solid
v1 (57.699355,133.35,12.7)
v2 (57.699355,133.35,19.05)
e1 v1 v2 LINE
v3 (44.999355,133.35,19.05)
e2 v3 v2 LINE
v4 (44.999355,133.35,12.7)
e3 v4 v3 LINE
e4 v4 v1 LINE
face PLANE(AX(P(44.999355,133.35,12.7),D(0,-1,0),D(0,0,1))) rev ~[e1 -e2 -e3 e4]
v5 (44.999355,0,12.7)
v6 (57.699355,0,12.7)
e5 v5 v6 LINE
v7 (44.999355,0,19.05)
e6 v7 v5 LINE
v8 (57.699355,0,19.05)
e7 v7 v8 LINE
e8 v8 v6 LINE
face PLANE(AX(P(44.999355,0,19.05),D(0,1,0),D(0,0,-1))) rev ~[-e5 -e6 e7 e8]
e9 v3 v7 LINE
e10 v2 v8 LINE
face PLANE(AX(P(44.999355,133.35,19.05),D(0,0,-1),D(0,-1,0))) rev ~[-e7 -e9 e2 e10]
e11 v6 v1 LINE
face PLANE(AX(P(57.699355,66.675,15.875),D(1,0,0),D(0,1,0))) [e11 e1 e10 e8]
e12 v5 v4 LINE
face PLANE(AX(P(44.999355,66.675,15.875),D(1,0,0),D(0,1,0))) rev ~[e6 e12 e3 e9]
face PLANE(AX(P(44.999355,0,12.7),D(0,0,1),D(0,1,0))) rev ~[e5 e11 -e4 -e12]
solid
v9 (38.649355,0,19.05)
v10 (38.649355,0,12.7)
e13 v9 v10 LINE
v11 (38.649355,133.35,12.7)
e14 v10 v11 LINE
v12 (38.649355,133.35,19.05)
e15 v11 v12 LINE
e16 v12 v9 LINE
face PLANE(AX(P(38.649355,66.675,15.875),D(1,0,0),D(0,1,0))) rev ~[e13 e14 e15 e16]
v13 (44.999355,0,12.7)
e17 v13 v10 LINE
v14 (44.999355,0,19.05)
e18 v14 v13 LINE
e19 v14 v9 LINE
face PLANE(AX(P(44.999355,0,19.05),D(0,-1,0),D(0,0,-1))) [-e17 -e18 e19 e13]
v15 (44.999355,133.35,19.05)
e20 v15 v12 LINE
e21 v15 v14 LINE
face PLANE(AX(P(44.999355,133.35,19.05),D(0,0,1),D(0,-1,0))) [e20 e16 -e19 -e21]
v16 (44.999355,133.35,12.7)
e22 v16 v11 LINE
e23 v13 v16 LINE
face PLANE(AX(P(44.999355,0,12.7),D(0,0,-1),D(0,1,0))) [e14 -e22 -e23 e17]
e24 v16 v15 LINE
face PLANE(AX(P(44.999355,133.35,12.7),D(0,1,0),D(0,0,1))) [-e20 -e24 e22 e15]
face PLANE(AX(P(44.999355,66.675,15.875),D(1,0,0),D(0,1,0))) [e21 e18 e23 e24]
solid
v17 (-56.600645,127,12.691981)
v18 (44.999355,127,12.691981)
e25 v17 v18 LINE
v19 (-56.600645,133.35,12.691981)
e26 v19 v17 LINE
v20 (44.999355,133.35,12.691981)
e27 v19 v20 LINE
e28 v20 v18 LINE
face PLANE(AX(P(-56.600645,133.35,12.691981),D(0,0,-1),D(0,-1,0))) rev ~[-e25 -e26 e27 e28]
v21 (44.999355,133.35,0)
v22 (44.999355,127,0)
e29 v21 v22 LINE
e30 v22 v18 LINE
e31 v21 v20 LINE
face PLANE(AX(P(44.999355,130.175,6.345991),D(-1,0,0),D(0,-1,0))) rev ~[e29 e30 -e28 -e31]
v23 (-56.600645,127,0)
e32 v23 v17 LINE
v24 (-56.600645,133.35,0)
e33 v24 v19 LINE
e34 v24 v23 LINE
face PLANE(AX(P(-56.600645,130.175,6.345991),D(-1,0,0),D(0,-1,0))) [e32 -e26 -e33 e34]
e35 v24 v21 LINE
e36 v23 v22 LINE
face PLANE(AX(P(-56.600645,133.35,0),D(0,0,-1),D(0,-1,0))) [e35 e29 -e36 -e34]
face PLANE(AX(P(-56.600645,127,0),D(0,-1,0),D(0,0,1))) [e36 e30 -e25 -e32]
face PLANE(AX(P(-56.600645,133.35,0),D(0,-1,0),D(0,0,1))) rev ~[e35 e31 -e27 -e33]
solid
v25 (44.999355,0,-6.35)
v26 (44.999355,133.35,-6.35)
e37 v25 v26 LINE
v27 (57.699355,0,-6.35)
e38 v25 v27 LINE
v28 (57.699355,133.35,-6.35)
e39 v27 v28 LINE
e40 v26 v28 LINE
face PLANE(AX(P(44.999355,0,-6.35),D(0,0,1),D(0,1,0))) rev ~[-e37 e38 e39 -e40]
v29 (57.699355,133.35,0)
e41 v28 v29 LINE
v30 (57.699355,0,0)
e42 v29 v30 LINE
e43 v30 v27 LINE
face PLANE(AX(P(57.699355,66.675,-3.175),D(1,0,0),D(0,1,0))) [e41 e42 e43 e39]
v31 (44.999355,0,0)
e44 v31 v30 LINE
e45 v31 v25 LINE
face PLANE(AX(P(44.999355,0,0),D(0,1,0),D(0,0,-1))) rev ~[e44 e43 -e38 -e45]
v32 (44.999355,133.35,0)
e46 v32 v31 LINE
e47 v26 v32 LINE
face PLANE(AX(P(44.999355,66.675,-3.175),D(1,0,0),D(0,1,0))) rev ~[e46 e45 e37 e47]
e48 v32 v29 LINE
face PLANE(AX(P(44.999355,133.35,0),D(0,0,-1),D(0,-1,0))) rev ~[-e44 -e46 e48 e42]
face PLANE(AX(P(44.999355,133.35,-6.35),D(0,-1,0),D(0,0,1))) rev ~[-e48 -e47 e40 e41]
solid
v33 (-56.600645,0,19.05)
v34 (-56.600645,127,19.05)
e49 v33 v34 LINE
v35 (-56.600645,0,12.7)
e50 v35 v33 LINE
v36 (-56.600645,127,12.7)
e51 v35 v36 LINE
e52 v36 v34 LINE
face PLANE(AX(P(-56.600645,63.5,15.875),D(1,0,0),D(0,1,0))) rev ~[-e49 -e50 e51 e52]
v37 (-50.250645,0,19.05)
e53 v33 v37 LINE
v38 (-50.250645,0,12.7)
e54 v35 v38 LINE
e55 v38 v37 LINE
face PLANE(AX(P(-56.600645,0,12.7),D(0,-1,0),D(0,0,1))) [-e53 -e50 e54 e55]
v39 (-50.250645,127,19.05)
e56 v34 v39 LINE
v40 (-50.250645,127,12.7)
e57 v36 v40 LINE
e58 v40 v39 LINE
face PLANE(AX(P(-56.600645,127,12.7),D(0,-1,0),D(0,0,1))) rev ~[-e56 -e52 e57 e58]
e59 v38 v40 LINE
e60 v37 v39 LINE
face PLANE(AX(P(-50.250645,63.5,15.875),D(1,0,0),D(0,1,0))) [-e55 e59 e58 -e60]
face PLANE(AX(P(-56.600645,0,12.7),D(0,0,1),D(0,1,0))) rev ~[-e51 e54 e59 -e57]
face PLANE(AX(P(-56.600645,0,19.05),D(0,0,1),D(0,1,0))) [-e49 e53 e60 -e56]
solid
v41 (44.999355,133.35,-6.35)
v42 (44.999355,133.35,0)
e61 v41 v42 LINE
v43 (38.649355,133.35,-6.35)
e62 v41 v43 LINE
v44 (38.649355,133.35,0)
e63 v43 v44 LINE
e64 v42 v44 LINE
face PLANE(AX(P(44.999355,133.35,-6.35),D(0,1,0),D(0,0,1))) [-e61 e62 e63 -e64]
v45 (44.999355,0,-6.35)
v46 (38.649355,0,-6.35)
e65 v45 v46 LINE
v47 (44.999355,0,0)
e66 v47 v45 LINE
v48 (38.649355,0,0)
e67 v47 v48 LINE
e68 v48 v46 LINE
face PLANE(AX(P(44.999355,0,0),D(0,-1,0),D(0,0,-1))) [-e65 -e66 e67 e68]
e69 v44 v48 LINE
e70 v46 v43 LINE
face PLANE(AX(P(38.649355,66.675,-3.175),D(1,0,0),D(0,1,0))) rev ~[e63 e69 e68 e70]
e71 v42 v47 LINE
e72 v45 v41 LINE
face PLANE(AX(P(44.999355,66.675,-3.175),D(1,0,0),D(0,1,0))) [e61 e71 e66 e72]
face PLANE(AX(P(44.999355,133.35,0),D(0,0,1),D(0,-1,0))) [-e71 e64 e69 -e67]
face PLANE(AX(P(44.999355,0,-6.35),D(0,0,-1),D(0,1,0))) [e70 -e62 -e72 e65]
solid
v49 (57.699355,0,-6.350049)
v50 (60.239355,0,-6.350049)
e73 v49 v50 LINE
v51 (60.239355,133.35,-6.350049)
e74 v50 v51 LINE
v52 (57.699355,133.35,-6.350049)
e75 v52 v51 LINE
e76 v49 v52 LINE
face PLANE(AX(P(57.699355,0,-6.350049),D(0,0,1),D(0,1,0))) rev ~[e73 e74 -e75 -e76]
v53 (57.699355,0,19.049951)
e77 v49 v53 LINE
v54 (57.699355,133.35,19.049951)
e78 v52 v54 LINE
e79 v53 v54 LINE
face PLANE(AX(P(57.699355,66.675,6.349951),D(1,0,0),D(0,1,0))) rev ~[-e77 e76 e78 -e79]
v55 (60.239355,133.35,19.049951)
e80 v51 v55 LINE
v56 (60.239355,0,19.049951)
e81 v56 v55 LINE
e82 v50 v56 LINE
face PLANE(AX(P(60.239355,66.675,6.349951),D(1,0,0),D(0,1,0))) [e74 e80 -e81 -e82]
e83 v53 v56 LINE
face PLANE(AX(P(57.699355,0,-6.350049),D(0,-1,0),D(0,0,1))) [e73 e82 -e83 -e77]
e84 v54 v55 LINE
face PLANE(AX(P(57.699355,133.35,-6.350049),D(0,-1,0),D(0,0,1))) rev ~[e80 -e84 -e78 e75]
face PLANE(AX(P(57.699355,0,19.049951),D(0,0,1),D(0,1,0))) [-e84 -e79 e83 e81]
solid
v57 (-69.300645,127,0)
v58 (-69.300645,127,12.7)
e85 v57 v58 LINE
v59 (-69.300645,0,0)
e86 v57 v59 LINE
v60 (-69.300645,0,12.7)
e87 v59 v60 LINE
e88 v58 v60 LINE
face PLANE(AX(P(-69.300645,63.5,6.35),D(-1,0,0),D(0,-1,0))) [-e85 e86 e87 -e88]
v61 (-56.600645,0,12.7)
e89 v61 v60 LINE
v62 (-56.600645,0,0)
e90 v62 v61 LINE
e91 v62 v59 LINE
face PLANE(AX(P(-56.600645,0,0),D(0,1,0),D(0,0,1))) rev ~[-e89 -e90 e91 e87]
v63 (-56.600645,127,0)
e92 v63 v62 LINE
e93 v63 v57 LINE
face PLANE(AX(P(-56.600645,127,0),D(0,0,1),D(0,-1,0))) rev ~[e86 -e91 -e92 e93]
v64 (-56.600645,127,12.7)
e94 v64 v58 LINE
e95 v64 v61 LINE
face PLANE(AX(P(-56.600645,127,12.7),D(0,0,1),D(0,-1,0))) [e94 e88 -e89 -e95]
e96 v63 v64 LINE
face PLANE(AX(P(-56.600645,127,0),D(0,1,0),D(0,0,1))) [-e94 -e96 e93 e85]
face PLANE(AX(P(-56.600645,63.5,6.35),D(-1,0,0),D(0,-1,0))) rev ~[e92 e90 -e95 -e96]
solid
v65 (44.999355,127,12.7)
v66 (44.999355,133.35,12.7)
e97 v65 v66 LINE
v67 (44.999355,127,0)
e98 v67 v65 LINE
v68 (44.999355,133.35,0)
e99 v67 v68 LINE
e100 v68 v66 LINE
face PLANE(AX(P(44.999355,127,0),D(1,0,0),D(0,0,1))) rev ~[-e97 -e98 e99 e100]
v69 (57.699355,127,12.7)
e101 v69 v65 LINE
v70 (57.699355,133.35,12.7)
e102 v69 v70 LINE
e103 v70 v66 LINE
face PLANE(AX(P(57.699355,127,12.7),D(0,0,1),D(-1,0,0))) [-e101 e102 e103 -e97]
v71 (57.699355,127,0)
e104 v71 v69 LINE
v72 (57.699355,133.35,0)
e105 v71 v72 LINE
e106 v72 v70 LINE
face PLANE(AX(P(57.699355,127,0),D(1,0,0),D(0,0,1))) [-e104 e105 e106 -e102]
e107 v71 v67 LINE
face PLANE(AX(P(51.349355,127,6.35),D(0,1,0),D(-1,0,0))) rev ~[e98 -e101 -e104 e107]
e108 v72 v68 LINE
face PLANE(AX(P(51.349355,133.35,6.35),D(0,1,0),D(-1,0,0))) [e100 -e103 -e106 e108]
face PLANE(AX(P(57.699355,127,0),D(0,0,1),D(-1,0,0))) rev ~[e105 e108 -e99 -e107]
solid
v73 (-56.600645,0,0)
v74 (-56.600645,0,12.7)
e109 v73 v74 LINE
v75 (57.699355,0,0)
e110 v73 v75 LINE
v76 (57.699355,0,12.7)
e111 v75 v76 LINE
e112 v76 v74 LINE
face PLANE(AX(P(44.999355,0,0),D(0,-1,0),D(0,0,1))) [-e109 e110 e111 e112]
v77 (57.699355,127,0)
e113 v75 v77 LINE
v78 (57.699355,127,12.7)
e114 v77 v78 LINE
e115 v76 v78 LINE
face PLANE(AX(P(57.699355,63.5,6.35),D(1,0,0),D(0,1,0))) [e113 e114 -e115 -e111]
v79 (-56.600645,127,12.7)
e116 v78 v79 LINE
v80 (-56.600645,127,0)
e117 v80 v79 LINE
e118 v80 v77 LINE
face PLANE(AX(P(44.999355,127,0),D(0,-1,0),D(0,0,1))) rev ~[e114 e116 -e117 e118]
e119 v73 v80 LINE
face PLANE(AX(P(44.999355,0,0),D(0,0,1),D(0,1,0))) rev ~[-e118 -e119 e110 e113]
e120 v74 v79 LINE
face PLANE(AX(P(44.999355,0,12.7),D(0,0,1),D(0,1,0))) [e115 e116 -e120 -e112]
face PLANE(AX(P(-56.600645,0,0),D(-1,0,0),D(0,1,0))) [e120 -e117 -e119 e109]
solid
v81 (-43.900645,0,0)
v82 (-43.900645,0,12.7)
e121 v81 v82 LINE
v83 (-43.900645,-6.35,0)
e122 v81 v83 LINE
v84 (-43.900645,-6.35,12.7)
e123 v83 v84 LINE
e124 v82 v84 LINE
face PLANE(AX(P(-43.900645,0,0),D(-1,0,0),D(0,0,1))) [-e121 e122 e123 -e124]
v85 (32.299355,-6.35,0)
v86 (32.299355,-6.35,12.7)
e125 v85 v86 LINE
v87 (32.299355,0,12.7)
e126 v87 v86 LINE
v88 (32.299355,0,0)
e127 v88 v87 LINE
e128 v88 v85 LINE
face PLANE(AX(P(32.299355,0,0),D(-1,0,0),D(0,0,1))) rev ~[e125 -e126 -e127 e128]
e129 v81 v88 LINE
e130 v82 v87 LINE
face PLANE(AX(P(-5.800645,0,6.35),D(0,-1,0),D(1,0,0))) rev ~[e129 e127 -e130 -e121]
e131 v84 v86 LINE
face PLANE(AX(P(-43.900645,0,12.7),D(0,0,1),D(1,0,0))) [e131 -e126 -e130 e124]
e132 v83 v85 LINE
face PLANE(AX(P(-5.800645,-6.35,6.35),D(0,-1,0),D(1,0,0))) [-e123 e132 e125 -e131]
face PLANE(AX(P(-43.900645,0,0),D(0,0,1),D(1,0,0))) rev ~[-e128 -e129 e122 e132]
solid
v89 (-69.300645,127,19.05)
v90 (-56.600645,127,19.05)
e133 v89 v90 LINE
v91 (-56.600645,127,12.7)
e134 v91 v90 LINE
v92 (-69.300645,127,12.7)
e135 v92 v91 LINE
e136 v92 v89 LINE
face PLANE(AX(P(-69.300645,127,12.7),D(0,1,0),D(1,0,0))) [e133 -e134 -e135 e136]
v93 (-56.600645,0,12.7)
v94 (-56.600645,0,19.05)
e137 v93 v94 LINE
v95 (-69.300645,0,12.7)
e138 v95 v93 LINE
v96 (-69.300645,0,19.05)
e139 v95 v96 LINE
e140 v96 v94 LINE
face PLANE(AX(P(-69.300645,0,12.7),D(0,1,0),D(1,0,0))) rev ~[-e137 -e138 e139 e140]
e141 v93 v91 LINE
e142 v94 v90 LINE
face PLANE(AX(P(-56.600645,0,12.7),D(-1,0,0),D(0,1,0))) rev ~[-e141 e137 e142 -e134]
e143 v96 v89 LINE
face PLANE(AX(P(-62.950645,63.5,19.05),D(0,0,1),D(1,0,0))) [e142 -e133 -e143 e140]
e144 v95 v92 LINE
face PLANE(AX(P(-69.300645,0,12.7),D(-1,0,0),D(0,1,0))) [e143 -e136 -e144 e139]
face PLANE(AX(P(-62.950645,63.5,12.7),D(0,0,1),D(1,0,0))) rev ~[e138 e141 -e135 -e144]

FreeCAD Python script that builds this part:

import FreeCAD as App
import Part
import Sketcher
from FreeCAD import Vector
Q = App.Units.Quantity


def add_polygon(sketch, points):
    """Adds a closed chain of lines whose ends are joined by coincident constraints."""
    first, n = sketch.GeometryCount, len(points)
    for a, b in zip(points, points[1:] + points[:1]):
        sketch.addGeometry(Part.LineSegment(App.Vector(*a, 0), App.Vector(*b, 0)), False)
    for i in range(n):
        sketch.addConstraint(Sketcher.Constraint("Coincident", first + i, 2, first + (i + 1) % n, 1))

doc = App.newDocument("Part")
body = doc.addObject("PartDesign::Body", "Body")

sketch1 = body.newObject("Sketcher::SketchObject", "Sketch")
sketch1.AttachmentSupport = (doc.getObject("XY_Plane"), [""])
sketch1.MapMode = "FlatFace"
add_polygon(sketch1, [(-57, 127), (-57, 0), (45, 0), (45, 127)])
sketch1.addConstraint([
    Sketcher.Constraint("Vertical", 0),
    Sketcher.Constraint("Horizontal", 1),
    Sketcher.Constraint("Vertical", 2),
    Sketcher.Constraint("Horizontal", 3),
    Sketcher.Constraint("PointOnObject", 0, 2, -1),
    Sketcher.Constraint("DistanceX", 1, 1, 1, 2, Q("4 in")),
    Sketcher.Constraint("DistanceY", 0, 2, 0, 1, Q("5 in")),
    Sketcher.Constraint("DistanceX", 0, 2, -1, 1, 56.600645),
])
pad1 = body.newObject("PartDesign::Pad", "Pad")
pad1.Profile = sketch1
pad1.Length = Q("0.5 in")

sketch2 = body.newObject("Sketcher::SketchObject", "Sketch001")
sketch2.AttachmentSupport = (doc.getObject("YZ_Plane"), [""])
sketch2.MapMode = "FlatFace"
sketch2.AttachmentOffset = App.Placement(Vector(0, 0, 44.999355), App.Rotation())
add_polygon(sketch2, [(0, 13), (0, 0), (127, 0), (127, 13)])
sketch2.addConstraint([
    Sketcher.Constraint("Vertical", 0),
    Sketcher.Constraint("Horizontal", 1),
    Sketcher.Constraint("Vertical", 2),
    Sketcher.Constraint("Horizontal", 3),
    Sketcher.Constraint("Coincident", 0, 2, -1, 1),
    Sketcher.Constraint("DistanceX", 1, 1, 1, 2, Q("5 in")),
    Sketcher.Constraint("DistanceY", 0, 2, 0, 1, Q("0.5 in")),
])
pad2 = body.newObject("PartDesign::Pad", "Pad001")
pad2.Profile = sketch2
pad2.Length = Q("0.5 in")
body2 = doc.addObject("PartDesign::Body", "Body001")

sketch3 = body2.newObject("Sketcher::SketchObject", "Sketch002")
sketch3.AttachmentSupport = (doc.getObject("XZ_Plane001"), [""])
sketch3.MapMode = "FlatFace"
add_polygon(sketch3, [(-44, 13), (-44, 0), (32, 0), (32, 13)])
sketch3.addConstraint([
    Sketcher.Constraint("Vertical", 0),
    Sketcher.Constraint("Horizontal", 1),
    Sketcher.Constraint("Vertical", 2),
    Sketcher.Constraint("Horizontal", 3),
    Sketcher.Constraint("PointOnObject", 0, 2, -1),
    Sketcher.Constraint("DistanceX", 1, 1, 1, 2, Q("3 in")),
    Sketcher.Constraint("DistanceY", 0, 2, 0, 1, Q("0.5 in")),
    Sketcher.Constraint("DistanceX", 0, 2, -1, 1, 43.900645),
])
pad3 = body2.newObject("PartDesign::Pad", "Pad002")
pad3.Profile = sketch3
pad3.Length = Q("0.25 in")
body3 = doc.addObject("PartDesign::Body", "Body002")

sketch4 = body3.newObject("Sketcher::SketchObject", "Sketch003")
sketch4.AttachmentSupport = (doc.getObject("YZ_Plane002"), [""])
sketch4.MapMode = "FlatFace"
sketch4.AttachmentOffset = App.Placement(Vector(0, 0, 44.999355), App.Rotation())
add_polygon(sketch4, [(0, 19), (0, 13), (133, 13), (133, 19)])
sketch4.addConstraint([
    Sketcher.Constraint("Vertical", 0),
    Sketcher.Constraint("Horizontal", 1),
    Sketcher.Constraint("Vertical", 2),
    Sketcher.Constraint("Horizontal", 3),
    Sketcher.Constraint("PointOnObject", 0, 2, -2),
    Sketcher.Constraint("DistanceX", 1, 1, 1, 2, Q("5.25 in")),
    Sketcher.Constraint("DistanceY", 0, 2, 0, 1, Q("0.25 in")),
    Sketcher.Constraint("DistanceY", -1, 1, 0, 2, Q("0.5 in")),
])
pad4 = body3.newObject("PartDesign::Pad", "Pad003")
pad4.Profile = sketch4
pad4.Length = Q("0.25 in")
pad4.Reversed = True
body4 = doc.addObject("PartDesign::Body", "Body003")

sketch5 = body4.newObject("Sketcher::SketchObject", "Sketch004")
sketch5.AttachmentSupport = (doc.getObject("YZ_Plane003"), [""])
sketch5.MapMode = "FlatFace"
sketch5.AttachmentOffset = App.Placement(Vector(0, 0, 44.999355), App.Rotation())
add_polygon(sketch5, [(0, 0), (0, -6), (133, -6), (133, 0)])
sketch5.addConstraint([
    Sketcher.Constraint("Vertical", 0),
    Sketcher.Constraint("Horizontal", 1),
    Sketcher.Constraint("Vertical", 2),
    Sketcher.Constraint("Horizontal", 3),
    Sketcher.Constraint("Coincident", 3, 2, -1, 1),
    Sketcher.Constraint("DistanceX", 1, 1, 1, 2, Q("5.25 in")),
    Sketcher.Constraint("DistanceY", 0, 2, 0, 1, Q("0.25 in")),
])
pad5 = body4.newObject("PartDesign::Pad", "Pad004")
pad5.Profile = sketch5
pad5.Length = Q("0.25 in")
pad5.Reversed = True
body5 = doc.addObject("PartDesign::Body", "Body004")

sketch6 = body5.newObject("Sketcher::SketchObject", "Sketch005")
sketch6.AttachmentSupport = (doc.getObject("YZ_Plane004"), [""])
sketch6.MapMode = "FlatFace"
sketch6.AttachmentOffset = App.Placement(Vector(0, 0, 44.999355), App.Rotation())
add_polygon(sketch6, [(0, 0), (0, -6), (133, -6), (133, 0)])
sketch6.addConstraint([
    Sketcher.Constraint("Vertical", 0),
    Sketcher.Constraint("Horizontal", 1),
    Sketcher.Constraint("Vertical", 2),
    Sketcher.Constraint("Horizontal", 3),
    Sketcher.Constraint("Coincident", 3, 2, -1, 1),
    Sketcher.Constraint("DistanceX", 1, 1, 1, 2, Q("5.25 in")),
    Sketcher.Constraint("DistanceY", 0, 2, 0, 1, Q("0.25 in")),
])
pad6 = body5.newObject("PartDesign::Pad", "Pad005")
pad6.Profile = sketch6
pad6.Length = Q("0.5 in")
body6 = doc.addObject("PartDesign::Body", "Body005")

sketch7 = body6.newObject("Sketcher::SketchObject", "Sketch006")
sketch7.AttachmentSupport = (doc.getObject("YZ_Plane005"), [""])
sketch7.MapMode = "FlatFace"
sketch7.AttachmentOffset = App.Placement(Vector(0, 0, 44.999355), App.Rotation())
add_polygon(sketch7, [(0, 19), (0, 13), (133, 13), (133, 19)])
sketch7.addConstraint([
    Sketcher.Constraint("Vertical", 0),
    Sketcher.Constraint("Horizontal", 1),
    Sketcher.Constraint("Vertical", 2),
    Sketcher.Constraint("Horizontal", 3),
    Sketcher.Constraint("PointOnObject", 0, 2, -2),
    Sketcher.Constraint("DistanceX", 1, 1, 1, 2, Q("5.25 in")),
    Sketcher.Constraint("DistanceY", 0, 2, 0, 1, Q("0.25 in")),
    Sketcher.Constraint("DistanceY", -1, 1, 0, 2, Q("0.5 in")),
])
pad7 = body6.newObject("PartDesign::Pad", "Pad006")
pad7.Profile = sketch7
pad7.Length = Q("0.5 in")
body7 = doc.addObject("PartDesign::Body", "Body006")

sketch8 = body7.newObject("Sketcher::SketchObject", "Sketch007")
sketch8.AttachmentSupport = (doc.getObject("YZ_Plane006"), [""])
sketch8.MapMode = "FlatFace"
sketch8.AttachmentOffset = App.Placement(Vector(0, 0, 57.699355), App.Rotation())
add_polygon(sketch8, [(0, 19), (0, -6), (133, -6), (133, 19)])
sketch8.addConstraint([
    Sketcher.Constraint("Vertical", 0),
    Sketcher.Constraint("Horizontal", 1),
    Sketcher.Constraint("Vertical", 2),
    Sketcher.Constraint("Horizontal", 3),
    Sketcher.Constraint("PointOnObject", 0, 2, -2),
    Sketcher.Constraint("DistanceY", 0, 2, 0, 1, Q("1 in")),
    Sketcher.Constraint("DistanceX", 1, 1, 1, 2, Q("5.25 in")),
    Sketcher.Constraint("DistanceY", 0, 2, -1, 1, 6.350049),
])
pad8 = body7.newObject("PartDesign::Pad", "Pad007")
pad8.Profile = sketch8
pad8.Length = Q("0.1 in")
body8 = doc.addObject("PartDesign::Body", "Body007")

sketch9 = body8.newObject("Sketcher::SketchObject", "Sketch008")
sketch9.AttachmentSupport = (doc.getObject("XZ_Plane007"), [""])
sketch9.MapMode = "FlatFace"
sketch9.AttachmentOffset = App.Placement(Vector(0, 0, -5 * 25.4), App.Rotation())
add_polygon(sketch9, [(58, 13), (58, 0), (45, 0), (45, 13)])
sketch9.addConstraint([
    Sketcher.Constraint("Vertical", 0),
    Sketcher.Constraint("Horizontal", 1),
    Sketcher.Constraint("Vertical", 2),
    Sketcher.Constraint("Horizontal", 3),
    Sketcher.Constraint("PointOnObject", 0, 2, -1),
    Sketcher.Constraint("Equal", 3, 0),
    Sketcher.Constraint("DistanceX", 1, 2, 1, 1, Q("0.5 in")),
    Sketcher.Constraint("DistanceX", -1, 1, 0, 2, 57.699355),
])
pad9 = body8.newObject("PartDesign::Pad", "Pad008")
pad9.Profile = sketch9
pad9.Length = Q("0.25 in")
pad9.Reversed = True
body9 = doc.addObject("PartDesign::Body", "Body008")

sketch10 = body9.newObject("Sketcher::SketchObject", "Sketch009")
sketch10.AttachmentSupport = (doc.getObject("YZ_Plane008"), [""])
sketch10.MapMode = "FlatFace"
sketch10.AttachmentOffset = App.Placement(Vector(0, 0, -56.600645), App.Rotation())
add_polygon(sketch10, [(133, 13), (133, 0), (127, 0), (127, 13)])
sketch10.addConstraint([
    Sketcher.Constraint("Vertical", 0),
    Sketcher.Constraint("Horizontal", 1),
    Sketcher.Constraint("Vertical", 2),
    Sketcher.Constraint("Horizontal", 3),
    Sketcher.Constraint("PointOnObject", 0, 2, -1),
    Sketcher.Constraint("DistanceX", -1, 1, 1, 2, Q("5 in")),
    Sketcher.Constraint("DistanceX", 1, 2, 1, 1, Q("0.25 in")),
    Sketcher.Constraint("DistanceY", 0, 2, 0, 1, 12.691981),
])
pad10 = body9.newObject("PartDesign::Pad", "Pad009")
pad10.Profile = sketch10
pad10.Length = Q("4 in")
body10 = doc.addObject("PartDesign::Body", "Body009")

sketch11 = body10.newObject("Sketcher::SketchObject", "Sketch010")
sketch11.AttachmentSupport = (doc.getObject("YZ_Plane009"), [""])
sketch11.MapMode = "FlatFace"
sketch11.AttachmentOffset = App.Placement(Vector(0, 0, -56.600645), App.Rotation())
add_polygon(sketch11, [(127, 13), (127, 0), (0, 0), (0, 13)])
sketch11.addConstraint([
    Sketcher.Constraint("Vertical", 0),
    Sketcher.Constraint("Horizontal", 1),
    Sketcher.Constraint("Vertical", 2),
    Sketcher.Constraint("Horizontal", 3),
    Sketcher.Constraint("Coincident", 1, 2, -1, 1),
    Sketcher.Constraint("DistanceX", 1, 2, 1, 1, Q("5 in")),
    Sketcher.Constraint("DistanceY", 0, 2, 0, 1, Q("0.5 in")),
])
pad11 = body10.newObject("PartDesign::Pad", "Pad010")
pad11.Profile = sketch11
pad11.Length = Q("0.5 in")
pad11.Reversed = True
body11 = doc.addObject("PartDesign::Body", "Body010")

sketch12 = body11.newObject("Sketcher::SketchObject", "Sketch011")
sketch12.AttachmentSupport = (doc.getObject("XY_Plane010"), [""])
sketch12.MapMode = "FlatFace"
sketch12.AttachmentOffset = App.Placement(Vector(0, 0, 0.5 * 25.4), App.Rotation())
add_polygon(sketch12, [(-69, 127), (-69, 0), (-57, 0), (-57, 127)])
sketch12.addConstraint([
    Sketcher.Constraint("Vertical", 0),
    Sketcher.Constraint("Horizontal", 1),
    Sketcher.Constraint("Vertical", 2),
    Sketcher.Constraint("Horizontal", 3),
    Sketcher.Constraint("PointOnObject", 0, 2, -1),
    Sketcher.Constraint("DistanceY", 0, 2, 0, 1, Q("5 in")),
    Sketcher.Constraint("DistanceX", 1, 1, 1, 2, Q("0.5 in")),
    Sketcher.Constraint("DistanceX", 0, 2, -1, 1, 69.300645),
])
pad12 = body11.newObject("PartDesign::Pad", "Pad011")
pad12.Profile = sketch12
pad12.Length = Q("0.25 in")
body12 = doc.addObject("PartDesign::Body", "Body011")

sketch13 = body12.newObject("Sketcher::SketchObject", "Sketch012")
sketch13.AttachmentSupport = (doc.getObject("YZ_Plane011"), [""])
sketch13.MapMode = "FlatFace"
sketch13.AttachmentOffset = App.Placement(Vector(0, 0, -56.600645), App.Rotation())
add_polygon(sketch13, [(0, 19), (0, 13), (127, 13), (127, 19)])
sketch13.addConstraint([
    Sketcher.Constraint("Vertical", 0),
    Sketcher.Constraint("Horizontal", 1),
    Sketcher.Constraint("Vertical", 2),
    Sketcher.Constraint("Horizontal", 3),
    Sketcher.Constraint("PointOnObject", 0, 2, -2),
    Sketcher.Constraint("DistanceX", 1, 1, 1, 2, Q("5 in")),
    Sketcher.Constraint("DistanceY", 0, 2, 0, 1, Q("0.25 in")),
    Sketcher.Constraint("DistanceY", -1, 1, 0, 2, Q("0.5 in")),
])
pad13 = body12.newObject("PartDesign::Pad", "Pad012")
pad13.Profile = sketch13
pad13.Length = Q("0.25 in")

doc.recompute()
